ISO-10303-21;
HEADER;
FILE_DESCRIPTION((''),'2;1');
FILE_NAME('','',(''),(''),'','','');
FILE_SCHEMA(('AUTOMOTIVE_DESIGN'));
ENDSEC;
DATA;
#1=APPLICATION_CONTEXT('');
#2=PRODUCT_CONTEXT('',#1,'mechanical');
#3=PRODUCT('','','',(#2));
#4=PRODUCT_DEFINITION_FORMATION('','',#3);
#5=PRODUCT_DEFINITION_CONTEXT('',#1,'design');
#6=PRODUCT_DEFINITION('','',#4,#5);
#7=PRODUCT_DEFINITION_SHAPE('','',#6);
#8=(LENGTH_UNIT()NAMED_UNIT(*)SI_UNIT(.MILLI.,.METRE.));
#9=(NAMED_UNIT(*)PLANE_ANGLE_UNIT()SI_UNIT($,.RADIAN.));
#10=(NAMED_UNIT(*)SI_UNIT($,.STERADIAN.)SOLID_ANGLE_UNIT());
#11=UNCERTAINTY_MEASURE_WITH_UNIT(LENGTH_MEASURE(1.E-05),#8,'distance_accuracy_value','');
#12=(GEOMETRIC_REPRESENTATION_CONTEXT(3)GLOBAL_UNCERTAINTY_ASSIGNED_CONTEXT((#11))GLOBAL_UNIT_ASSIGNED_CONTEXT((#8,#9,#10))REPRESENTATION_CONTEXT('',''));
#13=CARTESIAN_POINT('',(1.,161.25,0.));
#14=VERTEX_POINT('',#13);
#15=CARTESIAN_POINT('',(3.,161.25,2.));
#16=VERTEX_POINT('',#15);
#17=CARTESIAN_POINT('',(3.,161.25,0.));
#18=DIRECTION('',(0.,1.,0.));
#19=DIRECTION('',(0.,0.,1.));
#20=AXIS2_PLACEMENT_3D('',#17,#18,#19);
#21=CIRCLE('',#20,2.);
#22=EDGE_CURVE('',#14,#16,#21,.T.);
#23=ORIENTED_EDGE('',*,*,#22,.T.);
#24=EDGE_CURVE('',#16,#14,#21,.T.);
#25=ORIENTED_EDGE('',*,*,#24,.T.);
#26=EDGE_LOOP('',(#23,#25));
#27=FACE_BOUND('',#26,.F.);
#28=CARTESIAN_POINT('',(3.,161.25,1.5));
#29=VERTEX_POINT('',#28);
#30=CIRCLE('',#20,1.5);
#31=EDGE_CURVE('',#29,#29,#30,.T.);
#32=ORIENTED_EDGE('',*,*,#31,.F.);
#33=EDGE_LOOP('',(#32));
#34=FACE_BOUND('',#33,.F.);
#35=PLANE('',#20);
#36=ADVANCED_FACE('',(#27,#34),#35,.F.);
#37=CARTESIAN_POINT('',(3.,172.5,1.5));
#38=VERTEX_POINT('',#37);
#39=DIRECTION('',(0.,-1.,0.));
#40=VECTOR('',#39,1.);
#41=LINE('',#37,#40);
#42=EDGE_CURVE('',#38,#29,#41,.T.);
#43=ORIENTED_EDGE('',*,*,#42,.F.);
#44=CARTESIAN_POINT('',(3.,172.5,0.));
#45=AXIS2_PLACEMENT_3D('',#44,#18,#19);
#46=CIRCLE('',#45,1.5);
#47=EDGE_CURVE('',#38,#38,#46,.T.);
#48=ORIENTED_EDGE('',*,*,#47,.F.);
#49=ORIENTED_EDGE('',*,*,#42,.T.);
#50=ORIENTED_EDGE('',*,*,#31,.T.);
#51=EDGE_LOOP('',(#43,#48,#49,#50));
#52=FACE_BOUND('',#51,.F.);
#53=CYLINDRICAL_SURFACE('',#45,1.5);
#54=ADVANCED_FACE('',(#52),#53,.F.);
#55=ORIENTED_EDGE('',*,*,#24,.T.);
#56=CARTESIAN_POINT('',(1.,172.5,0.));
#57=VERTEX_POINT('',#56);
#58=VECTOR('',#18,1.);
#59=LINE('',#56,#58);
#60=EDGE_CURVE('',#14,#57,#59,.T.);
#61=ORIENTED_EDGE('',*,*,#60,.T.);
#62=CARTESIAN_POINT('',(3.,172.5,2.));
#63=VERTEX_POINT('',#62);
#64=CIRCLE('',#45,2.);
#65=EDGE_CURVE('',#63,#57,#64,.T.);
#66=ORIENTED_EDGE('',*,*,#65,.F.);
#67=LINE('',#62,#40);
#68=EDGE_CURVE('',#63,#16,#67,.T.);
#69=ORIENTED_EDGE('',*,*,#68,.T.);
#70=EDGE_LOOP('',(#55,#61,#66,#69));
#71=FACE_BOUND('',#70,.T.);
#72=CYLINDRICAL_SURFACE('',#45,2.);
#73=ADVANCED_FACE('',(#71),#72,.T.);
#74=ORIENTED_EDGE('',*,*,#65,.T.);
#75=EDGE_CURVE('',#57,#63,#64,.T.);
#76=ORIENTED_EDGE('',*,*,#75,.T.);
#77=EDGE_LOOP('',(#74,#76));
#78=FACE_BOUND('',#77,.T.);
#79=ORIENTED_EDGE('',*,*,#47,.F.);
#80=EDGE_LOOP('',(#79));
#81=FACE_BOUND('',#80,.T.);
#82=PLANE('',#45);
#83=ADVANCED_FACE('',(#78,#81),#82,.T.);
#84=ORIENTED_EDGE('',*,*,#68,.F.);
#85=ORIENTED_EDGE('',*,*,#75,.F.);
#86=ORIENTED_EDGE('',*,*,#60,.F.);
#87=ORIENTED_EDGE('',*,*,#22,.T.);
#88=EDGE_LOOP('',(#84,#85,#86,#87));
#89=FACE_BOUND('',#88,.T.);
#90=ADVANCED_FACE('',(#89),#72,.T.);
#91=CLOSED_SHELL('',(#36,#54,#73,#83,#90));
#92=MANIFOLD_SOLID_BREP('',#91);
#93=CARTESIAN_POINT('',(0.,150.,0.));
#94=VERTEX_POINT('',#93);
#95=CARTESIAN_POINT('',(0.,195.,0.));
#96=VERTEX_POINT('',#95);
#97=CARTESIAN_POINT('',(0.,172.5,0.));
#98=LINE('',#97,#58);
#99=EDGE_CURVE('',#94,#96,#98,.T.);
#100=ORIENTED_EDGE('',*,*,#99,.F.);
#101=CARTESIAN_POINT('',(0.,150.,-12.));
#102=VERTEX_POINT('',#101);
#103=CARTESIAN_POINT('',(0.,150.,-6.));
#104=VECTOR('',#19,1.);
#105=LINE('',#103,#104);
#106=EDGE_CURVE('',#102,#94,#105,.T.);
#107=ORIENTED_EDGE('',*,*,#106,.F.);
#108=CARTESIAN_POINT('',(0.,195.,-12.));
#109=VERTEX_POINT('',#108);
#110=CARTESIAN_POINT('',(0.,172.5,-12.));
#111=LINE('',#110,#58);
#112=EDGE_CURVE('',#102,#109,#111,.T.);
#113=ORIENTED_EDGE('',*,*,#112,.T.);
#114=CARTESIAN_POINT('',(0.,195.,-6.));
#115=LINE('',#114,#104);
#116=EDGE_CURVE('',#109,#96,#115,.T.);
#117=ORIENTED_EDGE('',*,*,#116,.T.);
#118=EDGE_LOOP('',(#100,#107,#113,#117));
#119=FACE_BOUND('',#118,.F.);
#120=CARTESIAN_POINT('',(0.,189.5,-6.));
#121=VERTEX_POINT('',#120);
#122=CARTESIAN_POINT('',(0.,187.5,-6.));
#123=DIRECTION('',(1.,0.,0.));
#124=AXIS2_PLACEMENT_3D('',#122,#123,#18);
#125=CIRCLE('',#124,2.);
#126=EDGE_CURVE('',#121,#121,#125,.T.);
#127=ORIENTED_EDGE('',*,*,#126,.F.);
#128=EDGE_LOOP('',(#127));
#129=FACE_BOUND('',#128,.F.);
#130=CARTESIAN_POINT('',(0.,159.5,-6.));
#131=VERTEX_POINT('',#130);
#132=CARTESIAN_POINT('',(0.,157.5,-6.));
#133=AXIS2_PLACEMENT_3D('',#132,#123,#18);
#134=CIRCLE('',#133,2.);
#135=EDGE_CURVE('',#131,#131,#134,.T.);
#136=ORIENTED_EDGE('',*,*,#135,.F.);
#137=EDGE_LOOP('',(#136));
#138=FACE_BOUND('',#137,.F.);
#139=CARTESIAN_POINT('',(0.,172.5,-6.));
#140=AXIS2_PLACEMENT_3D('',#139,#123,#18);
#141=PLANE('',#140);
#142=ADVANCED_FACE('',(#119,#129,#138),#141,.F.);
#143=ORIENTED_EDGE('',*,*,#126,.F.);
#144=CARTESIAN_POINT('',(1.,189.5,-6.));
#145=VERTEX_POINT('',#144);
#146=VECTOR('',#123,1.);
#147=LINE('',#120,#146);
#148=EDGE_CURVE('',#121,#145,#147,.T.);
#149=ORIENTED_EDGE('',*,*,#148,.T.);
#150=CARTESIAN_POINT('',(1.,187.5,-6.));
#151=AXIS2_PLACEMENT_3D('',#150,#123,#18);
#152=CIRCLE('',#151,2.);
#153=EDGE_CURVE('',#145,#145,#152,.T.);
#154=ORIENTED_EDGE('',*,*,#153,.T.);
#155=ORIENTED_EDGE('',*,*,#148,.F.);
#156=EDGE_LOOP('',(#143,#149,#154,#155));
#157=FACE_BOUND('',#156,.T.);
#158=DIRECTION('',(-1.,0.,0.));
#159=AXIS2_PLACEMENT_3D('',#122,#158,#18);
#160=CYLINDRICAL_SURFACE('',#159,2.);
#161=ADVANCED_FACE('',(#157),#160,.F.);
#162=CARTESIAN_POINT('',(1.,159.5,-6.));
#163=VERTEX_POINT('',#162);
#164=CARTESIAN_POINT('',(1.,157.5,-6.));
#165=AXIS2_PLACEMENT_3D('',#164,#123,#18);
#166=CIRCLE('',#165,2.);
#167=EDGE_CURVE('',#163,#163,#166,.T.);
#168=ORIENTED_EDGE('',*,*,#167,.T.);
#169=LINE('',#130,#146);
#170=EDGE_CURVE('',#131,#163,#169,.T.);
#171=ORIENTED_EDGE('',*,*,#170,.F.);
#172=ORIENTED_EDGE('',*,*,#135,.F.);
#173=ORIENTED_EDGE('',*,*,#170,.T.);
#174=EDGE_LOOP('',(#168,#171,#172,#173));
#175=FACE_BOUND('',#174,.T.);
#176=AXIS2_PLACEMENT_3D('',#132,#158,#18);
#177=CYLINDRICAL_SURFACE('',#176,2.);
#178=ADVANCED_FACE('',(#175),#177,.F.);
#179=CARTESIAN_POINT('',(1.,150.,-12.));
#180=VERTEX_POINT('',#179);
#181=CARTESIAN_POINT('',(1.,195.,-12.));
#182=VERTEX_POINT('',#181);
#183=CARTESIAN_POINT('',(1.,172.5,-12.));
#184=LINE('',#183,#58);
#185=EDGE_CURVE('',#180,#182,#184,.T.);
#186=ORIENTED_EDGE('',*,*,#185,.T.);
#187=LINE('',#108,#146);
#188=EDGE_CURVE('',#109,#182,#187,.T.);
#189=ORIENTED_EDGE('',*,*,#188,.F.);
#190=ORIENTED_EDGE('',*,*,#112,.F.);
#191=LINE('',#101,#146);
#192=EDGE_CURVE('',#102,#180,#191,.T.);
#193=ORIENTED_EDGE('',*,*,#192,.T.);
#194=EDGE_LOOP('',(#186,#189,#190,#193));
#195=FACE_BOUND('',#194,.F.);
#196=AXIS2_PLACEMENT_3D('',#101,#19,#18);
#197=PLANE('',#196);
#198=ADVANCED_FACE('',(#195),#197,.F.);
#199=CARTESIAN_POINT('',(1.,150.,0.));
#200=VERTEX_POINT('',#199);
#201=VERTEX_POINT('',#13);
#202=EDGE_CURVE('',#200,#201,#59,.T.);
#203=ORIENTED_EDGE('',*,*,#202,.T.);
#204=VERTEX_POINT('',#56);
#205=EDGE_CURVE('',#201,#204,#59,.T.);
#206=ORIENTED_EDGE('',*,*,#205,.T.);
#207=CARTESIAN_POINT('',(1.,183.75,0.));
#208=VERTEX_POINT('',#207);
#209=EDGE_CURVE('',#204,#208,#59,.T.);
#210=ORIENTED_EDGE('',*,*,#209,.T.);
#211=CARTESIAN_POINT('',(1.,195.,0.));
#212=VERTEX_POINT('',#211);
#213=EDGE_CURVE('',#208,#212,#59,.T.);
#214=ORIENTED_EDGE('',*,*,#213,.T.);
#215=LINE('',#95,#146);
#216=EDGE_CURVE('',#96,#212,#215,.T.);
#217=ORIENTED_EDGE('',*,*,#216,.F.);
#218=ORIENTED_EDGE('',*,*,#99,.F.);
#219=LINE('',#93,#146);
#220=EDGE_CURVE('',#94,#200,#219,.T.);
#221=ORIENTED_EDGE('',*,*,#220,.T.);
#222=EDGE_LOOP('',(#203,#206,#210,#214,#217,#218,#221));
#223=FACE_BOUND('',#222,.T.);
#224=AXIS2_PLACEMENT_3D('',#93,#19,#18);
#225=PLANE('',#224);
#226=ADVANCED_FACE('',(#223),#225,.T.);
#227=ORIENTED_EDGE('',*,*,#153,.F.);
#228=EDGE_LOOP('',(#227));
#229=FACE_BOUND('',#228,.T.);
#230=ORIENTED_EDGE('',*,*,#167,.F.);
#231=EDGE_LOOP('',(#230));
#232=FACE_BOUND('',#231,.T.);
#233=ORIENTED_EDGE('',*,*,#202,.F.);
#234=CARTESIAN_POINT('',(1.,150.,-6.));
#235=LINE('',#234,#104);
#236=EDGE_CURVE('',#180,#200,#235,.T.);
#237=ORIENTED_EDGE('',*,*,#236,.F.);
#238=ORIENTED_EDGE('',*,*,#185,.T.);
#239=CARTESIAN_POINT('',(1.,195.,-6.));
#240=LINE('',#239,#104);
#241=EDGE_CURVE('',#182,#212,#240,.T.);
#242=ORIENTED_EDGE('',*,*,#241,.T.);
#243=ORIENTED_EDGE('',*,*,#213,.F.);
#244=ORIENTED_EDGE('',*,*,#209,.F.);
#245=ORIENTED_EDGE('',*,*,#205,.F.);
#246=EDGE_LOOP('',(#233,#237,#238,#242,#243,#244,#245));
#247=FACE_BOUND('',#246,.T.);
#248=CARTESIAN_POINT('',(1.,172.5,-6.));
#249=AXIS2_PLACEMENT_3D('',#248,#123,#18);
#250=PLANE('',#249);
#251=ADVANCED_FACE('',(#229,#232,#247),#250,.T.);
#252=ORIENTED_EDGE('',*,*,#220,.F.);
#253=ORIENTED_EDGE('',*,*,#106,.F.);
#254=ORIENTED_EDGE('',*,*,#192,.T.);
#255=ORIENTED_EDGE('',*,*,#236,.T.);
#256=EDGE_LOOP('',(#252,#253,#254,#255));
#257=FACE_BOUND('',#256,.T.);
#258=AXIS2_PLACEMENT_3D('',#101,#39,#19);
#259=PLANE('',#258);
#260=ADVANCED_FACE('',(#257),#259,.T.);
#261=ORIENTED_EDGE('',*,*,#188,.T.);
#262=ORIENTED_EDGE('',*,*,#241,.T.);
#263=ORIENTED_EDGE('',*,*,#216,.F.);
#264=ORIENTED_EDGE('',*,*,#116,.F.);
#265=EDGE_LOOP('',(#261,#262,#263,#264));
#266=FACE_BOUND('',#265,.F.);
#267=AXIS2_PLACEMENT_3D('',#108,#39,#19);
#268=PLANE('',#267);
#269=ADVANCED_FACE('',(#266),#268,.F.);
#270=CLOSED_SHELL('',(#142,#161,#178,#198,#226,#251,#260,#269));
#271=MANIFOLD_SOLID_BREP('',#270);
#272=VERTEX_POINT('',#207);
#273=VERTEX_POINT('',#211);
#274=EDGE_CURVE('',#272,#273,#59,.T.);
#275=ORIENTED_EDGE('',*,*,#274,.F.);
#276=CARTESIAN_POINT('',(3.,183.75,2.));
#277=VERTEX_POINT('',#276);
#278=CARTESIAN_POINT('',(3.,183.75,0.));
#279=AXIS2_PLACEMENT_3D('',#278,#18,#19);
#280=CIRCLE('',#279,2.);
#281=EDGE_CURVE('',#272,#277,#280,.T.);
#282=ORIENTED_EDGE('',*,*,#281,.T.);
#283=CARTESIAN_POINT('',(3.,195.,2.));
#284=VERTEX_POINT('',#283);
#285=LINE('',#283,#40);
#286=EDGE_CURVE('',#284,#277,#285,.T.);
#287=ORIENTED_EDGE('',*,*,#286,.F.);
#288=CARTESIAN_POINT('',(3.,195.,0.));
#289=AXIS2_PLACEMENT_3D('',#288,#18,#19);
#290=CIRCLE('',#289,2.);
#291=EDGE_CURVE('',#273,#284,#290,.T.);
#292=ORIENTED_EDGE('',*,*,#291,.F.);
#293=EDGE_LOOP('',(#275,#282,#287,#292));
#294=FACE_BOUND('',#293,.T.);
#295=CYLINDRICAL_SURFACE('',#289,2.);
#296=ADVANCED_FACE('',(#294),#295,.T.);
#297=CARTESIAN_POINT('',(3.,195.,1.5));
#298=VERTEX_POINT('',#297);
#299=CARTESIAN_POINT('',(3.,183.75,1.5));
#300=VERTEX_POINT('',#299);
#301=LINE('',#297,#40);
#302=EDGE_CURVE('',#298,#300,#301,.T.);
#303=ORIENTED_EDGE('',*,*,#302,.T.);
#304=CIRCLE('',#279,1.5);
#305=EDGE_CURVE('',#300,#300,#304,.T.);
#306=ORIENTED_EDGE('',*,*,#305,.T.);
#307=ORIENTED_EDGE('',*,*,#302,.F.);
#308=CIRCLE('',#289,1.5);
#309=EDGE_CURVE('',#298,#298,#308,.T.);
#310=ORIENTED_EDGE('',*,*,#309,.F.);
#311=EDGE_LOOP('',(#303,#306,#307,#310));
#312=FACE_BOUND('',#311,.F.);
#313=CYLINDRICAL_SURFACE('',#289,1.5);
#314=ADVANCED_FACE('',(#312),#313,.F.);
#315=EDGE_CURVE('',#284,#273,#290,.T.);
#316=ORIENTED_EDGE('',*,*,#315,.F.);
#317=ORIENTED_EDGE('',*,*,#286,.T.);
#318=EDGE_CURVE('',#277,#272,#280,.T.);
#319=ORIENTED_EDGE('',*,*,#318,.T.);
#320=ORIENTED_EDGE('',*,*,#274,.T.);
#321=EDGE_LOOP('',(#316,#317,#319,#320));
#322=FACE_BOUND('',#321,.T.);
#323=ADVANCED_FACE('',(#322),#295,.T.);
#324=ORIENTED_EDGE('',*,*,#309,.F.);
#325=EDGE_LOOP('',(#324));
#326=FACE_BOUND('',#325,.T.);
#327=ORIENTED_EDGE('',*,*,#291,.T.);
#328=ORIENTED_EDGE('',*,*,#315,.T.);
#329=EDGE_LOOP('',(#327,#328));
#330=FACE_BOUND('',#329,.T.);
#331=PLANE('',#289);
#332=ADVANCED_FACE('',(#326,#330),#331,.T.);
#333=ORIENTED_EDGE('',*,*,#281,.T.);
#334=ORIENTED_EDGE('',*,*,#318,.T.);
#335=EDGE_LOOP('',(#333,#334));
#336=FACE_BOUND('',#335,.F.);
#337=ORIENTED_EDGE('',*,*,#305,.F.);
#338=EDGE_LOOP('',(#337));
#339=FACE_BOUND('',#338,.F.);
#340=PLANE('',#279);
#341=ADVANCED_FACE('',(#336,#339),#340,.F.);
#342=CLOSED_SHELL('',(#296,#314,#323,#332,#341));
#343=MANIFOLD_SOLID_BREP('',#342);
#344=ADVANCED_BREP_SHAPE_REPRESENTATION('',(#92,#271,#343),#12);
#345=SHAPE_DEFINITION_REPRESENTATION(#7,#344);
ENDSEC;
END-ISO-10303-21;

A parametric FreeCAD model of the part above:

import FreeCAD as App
import Part
import Sketcher
from FreeCAD import Vector
Q = App.Units.Quantity

doc = App.newDocument("Part")
body = doc.addObject("PartDesign::Body", "Body")
body.AllowCompound = True

sketch1 = doc.addObject("Sketcher::SketchObject", "Sketch")
body.addObject(sketch1)
sketch1.AttachmentSupport = (doc.YZ_Plane, [""])
sketch1.MapMode = "FlatFace"
sketch1.addGeometry(Part.LineSegment(Vector(150, 0, 0), Vector(150, -12, 0)), False)
sketch1.addGeometry(Part.LineSegment(Vector(150, -12, 0), Vector(195, -12, 0)), False)
sketch1.addGeometry(Part.LineSegment(Vector(195, -12, 0), Vector(195, 0, 0)), False)
sketch1.addGeometry(Part.LineSegment(Vector(195, 0, 0), Vector(150, 0, 0)), False)
sketch1.addGeometry(Part.Circle(Vector(157.5, -6, 0), Vector(0, 0, 1), 2), False)
sketch1.addGeometry(Part.Circle(Vector(187.5, -6, 0), Vector(0, 0, 1), 2), False)
sketch1.addConstraint(Sketcher.Constraint("Coincident", 0, 2, 1, 1))
sketch1.addConstraint(Sketcher.Constraint("Coincident", 1, 2, 2, 1))
sketch1.addConstraint(Sketcher.Constraint("Coincident", 2, 2, 3, 1))
sketch1.addConstraint(Sketcher.Constraint("Coincident", 3, 2, 0, 1))
sketch1.addConstraint(Sketcher.Constraint("Vertical", 0))
sketch1.addConstraint(Sketcher.Constraint("Horizontal", 1))
sketch1.addConstraint(Sketcher.Constraint("Vertical", 2))
sketch1.addConstraint(Sketcher.Constraint("Horizontal", 3))
sketch1.addConstraint(Sketcher.Constraint("Equal", 4, 5))
sketch1.addConstraint(Sketcher.Constraint("PointOnObject", 2, 2, -1))
sketch1.addConstraint(Sketcher.Constraint("Horizontal", 4, 3, 5, 3))
sketch1.addConstraint(Sketcher.Constraint("Diameter", 4, Q("4 mm")))
sketch1.addConstraint(Sketcher.Constraint("DistanceX", 1, 1, 1, 2, Q("45 mm")))
sketch1.addConstraint(Sketcher.Constraint("DistanceY", 0, 2, 0, 1, Q("12 mm")))
sketch1.addConstraint(Sketcher.Constraint("DistanceY", 4, 3, -1, 1, Q("6 mm")))
sketch1.addConstraint(Sketcher.Constraint("DistanceX", -1, 1, 0, 2, Q("150 mm")))
sketch1.addConstraint(Sketcher.Constraint("DistanceX", 4, 3, 5, 3, Q("30 mm")))
sketch1.addConstraint(Sketcher.Constraint("DistanceX", -1, 1, 4, 3, Q("157.5 mm")))
pad1 = doc.addObject("PartDesign::Pad", "Pad")
body.addObject(pad1)
pad1.Profile = sketch1
pad1.Length = 1

sketch2 = doc.addObject("Sketcher::SketchObject", "Sketch001")
body.addObject(sketch2)
sketch2.AttachmentSupport = (doc.XZ_Plane, [""])
sketch2.MapMode = "FlatFace"
sketch2.AttachmentOffset = App.Placement(Vector(0, 0, -195), App.Rotation())
sketch2.addGeometry(Part.Circle(Vector(3, 0, 0), Vector(0, 0, 1), 2), False)
sketch2.addGeometry(Part.Circle(Vector(3, 0, 0), Vector(0, 0, 1), 1.5), False)
sketch2.addConstraint(Sketcher.Constraint("Coincident", 1, 3, 0, 3))
sketch2.addConstraint(Sketcher.Constraint("PointOnObject", 0, 3, -1))
sketch2.addConstraint(Sketcher.Constraint("Diameter", 0, Q("4 mm")))
sketch2.addConstraint(Sketcher.Constraint("Diameter", 1, Q("3 mm")))
sketch2.addConstraint(Sketcher.Constraint("DistanceX", -1, 1, 0, 3, Q("3 mm")))
pad2 = doc.addObject("PartDesign::Pad", "Pad001")
body.addObject(pad2)
pad2.Profile = sketch2
pad2.Length = 11.25
doc.recompute()

linearpattern = doc.addObject("PartDesign::LinearPattern", "LinearPattern")
body.addObject(linearpattern)
linearpattern.Originals = [pad2]
linearpattern.Direction = (doc.Y_Axis, [""])
linearpattern.Mode = "offset"
linearpattern.Offset = 22.5
linearpattern.Occurrences = 2
linearpattern.Reversed = True
body.Tip = linearpattern

doc.recompute()
